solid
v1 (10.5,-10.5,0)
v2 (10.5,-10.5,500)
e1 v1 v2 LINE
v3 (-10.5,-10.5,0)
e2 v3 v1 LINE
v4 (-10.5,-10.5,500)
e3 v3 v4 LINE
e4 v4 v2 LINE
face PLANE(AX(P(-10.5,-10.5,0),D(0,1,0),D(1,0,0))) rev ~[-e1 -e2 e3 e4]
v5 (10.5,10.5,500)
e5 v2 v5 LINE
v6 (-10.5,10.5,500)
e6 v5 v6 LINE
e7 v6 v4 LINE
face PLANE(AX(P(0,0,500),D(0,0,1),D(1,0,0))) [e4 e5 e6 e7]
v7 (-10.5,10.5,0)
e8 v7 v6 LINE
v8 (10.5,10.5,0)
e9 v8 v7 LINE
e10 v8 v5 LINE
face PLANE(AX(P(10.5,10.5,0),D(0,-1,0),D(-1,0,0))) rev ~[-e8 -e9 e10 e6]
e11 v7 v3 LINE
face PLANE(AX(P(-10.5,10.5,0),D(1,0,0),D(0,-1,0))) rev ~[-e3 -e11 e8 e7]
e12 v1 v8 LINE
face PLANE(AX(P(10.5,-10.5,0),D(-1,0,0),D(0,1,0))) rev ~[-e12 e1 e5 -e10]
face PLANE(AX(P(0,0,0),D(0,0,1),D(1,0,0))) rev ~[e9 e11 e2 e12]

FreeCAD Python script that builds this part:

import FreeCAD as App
import Part
import Sketcher
from FreeCAD import Vector

doc = App.newDocument("Part")
params = doc.addObject("Spreadsheet::Sheet", "Params")
for row, (alias, value) in enumerate([
    ("sketch1_width", "21 mm"),
    ("pad1_length", "500 mm"),
], start=1):
    params.set(f"A{row}", alias)
    params.set(f"B{row}", "=" + value)
    params.setAlias(f"B{row}", alias)

body = doc.addObject("PartDesign::Body", "Body")

# Sketch on XY plane
sketch1 = body.newObject("Sketcher::SketchObject", "Sketch")
sketch1.AttachmentSupport = (doc.getObject("XY_Plane"), [""])
sketch1.MapMode = "FlatFace"
sketch1.addGeometry(Part.LineSegment(Vector(-10.5, 10.5, 0), Vector(-10.5, -10.5, 0)), False)
sketch1.addGeometry(Part.LineSegment(Vector(-10.5, -10.5, 0), Vector(10.5, -10.5, 0)), False)
sketch1.addGeometry(Part.LineSegment(Vector(10.5, -10.5, 0), Vector(10.5, 10.5, 0)), False)
sketch1.addGeometry(Part.LineSegment(Vector(10.5, 10.5, 0), Vector(-10.5, 10.5, 0)), False)
sketch1.addConstraint(Sketcher.Constraint("Coincident", 0, 2, 1, 1))
sketch1.addConstraint(Sketcher.Constraint("Coincident", 1, 2, 2, 1))
sketch1.addConstraint(Sketcher.Constraint("Coincident", 2, 2, 3, 1))
sketch1.addConstraint(Sketcher.Constraint("Coincident", 3, 2, 0, 1))
sketch1.addConstraint(Sketcher.Constraint("Vertical", 0))
sketch1.addConstraint(Sketcher.Constraint("Horizontal", 1))
sketch1.addConstraint(Sketcher.Constraint("Vertical", 2))
sketch1.addConstraint(Sketcher.Constraint("Horizontal", 3))
sketch1.addConstraint(Sketcher.Constraint("Symmetric", 0, 2, 2, 2, -1, 1))
sketch1.addConstraint(Sketcher.Constraint("Equal", 3, 0))
sketch1.addConstraint(Sketcher.Constraint("DistanceX", 1, 1, 1, 2, 21.0))
sketch1.setExpression("Constraints[10]", "Params.sketch1_width")
pad1 = body.newObject("PartDesign::Pad", "Pad")
pad1.Profile = sketch1
pad1.setExpression("Length", "Params.pad1_length")

doc.recompute()
